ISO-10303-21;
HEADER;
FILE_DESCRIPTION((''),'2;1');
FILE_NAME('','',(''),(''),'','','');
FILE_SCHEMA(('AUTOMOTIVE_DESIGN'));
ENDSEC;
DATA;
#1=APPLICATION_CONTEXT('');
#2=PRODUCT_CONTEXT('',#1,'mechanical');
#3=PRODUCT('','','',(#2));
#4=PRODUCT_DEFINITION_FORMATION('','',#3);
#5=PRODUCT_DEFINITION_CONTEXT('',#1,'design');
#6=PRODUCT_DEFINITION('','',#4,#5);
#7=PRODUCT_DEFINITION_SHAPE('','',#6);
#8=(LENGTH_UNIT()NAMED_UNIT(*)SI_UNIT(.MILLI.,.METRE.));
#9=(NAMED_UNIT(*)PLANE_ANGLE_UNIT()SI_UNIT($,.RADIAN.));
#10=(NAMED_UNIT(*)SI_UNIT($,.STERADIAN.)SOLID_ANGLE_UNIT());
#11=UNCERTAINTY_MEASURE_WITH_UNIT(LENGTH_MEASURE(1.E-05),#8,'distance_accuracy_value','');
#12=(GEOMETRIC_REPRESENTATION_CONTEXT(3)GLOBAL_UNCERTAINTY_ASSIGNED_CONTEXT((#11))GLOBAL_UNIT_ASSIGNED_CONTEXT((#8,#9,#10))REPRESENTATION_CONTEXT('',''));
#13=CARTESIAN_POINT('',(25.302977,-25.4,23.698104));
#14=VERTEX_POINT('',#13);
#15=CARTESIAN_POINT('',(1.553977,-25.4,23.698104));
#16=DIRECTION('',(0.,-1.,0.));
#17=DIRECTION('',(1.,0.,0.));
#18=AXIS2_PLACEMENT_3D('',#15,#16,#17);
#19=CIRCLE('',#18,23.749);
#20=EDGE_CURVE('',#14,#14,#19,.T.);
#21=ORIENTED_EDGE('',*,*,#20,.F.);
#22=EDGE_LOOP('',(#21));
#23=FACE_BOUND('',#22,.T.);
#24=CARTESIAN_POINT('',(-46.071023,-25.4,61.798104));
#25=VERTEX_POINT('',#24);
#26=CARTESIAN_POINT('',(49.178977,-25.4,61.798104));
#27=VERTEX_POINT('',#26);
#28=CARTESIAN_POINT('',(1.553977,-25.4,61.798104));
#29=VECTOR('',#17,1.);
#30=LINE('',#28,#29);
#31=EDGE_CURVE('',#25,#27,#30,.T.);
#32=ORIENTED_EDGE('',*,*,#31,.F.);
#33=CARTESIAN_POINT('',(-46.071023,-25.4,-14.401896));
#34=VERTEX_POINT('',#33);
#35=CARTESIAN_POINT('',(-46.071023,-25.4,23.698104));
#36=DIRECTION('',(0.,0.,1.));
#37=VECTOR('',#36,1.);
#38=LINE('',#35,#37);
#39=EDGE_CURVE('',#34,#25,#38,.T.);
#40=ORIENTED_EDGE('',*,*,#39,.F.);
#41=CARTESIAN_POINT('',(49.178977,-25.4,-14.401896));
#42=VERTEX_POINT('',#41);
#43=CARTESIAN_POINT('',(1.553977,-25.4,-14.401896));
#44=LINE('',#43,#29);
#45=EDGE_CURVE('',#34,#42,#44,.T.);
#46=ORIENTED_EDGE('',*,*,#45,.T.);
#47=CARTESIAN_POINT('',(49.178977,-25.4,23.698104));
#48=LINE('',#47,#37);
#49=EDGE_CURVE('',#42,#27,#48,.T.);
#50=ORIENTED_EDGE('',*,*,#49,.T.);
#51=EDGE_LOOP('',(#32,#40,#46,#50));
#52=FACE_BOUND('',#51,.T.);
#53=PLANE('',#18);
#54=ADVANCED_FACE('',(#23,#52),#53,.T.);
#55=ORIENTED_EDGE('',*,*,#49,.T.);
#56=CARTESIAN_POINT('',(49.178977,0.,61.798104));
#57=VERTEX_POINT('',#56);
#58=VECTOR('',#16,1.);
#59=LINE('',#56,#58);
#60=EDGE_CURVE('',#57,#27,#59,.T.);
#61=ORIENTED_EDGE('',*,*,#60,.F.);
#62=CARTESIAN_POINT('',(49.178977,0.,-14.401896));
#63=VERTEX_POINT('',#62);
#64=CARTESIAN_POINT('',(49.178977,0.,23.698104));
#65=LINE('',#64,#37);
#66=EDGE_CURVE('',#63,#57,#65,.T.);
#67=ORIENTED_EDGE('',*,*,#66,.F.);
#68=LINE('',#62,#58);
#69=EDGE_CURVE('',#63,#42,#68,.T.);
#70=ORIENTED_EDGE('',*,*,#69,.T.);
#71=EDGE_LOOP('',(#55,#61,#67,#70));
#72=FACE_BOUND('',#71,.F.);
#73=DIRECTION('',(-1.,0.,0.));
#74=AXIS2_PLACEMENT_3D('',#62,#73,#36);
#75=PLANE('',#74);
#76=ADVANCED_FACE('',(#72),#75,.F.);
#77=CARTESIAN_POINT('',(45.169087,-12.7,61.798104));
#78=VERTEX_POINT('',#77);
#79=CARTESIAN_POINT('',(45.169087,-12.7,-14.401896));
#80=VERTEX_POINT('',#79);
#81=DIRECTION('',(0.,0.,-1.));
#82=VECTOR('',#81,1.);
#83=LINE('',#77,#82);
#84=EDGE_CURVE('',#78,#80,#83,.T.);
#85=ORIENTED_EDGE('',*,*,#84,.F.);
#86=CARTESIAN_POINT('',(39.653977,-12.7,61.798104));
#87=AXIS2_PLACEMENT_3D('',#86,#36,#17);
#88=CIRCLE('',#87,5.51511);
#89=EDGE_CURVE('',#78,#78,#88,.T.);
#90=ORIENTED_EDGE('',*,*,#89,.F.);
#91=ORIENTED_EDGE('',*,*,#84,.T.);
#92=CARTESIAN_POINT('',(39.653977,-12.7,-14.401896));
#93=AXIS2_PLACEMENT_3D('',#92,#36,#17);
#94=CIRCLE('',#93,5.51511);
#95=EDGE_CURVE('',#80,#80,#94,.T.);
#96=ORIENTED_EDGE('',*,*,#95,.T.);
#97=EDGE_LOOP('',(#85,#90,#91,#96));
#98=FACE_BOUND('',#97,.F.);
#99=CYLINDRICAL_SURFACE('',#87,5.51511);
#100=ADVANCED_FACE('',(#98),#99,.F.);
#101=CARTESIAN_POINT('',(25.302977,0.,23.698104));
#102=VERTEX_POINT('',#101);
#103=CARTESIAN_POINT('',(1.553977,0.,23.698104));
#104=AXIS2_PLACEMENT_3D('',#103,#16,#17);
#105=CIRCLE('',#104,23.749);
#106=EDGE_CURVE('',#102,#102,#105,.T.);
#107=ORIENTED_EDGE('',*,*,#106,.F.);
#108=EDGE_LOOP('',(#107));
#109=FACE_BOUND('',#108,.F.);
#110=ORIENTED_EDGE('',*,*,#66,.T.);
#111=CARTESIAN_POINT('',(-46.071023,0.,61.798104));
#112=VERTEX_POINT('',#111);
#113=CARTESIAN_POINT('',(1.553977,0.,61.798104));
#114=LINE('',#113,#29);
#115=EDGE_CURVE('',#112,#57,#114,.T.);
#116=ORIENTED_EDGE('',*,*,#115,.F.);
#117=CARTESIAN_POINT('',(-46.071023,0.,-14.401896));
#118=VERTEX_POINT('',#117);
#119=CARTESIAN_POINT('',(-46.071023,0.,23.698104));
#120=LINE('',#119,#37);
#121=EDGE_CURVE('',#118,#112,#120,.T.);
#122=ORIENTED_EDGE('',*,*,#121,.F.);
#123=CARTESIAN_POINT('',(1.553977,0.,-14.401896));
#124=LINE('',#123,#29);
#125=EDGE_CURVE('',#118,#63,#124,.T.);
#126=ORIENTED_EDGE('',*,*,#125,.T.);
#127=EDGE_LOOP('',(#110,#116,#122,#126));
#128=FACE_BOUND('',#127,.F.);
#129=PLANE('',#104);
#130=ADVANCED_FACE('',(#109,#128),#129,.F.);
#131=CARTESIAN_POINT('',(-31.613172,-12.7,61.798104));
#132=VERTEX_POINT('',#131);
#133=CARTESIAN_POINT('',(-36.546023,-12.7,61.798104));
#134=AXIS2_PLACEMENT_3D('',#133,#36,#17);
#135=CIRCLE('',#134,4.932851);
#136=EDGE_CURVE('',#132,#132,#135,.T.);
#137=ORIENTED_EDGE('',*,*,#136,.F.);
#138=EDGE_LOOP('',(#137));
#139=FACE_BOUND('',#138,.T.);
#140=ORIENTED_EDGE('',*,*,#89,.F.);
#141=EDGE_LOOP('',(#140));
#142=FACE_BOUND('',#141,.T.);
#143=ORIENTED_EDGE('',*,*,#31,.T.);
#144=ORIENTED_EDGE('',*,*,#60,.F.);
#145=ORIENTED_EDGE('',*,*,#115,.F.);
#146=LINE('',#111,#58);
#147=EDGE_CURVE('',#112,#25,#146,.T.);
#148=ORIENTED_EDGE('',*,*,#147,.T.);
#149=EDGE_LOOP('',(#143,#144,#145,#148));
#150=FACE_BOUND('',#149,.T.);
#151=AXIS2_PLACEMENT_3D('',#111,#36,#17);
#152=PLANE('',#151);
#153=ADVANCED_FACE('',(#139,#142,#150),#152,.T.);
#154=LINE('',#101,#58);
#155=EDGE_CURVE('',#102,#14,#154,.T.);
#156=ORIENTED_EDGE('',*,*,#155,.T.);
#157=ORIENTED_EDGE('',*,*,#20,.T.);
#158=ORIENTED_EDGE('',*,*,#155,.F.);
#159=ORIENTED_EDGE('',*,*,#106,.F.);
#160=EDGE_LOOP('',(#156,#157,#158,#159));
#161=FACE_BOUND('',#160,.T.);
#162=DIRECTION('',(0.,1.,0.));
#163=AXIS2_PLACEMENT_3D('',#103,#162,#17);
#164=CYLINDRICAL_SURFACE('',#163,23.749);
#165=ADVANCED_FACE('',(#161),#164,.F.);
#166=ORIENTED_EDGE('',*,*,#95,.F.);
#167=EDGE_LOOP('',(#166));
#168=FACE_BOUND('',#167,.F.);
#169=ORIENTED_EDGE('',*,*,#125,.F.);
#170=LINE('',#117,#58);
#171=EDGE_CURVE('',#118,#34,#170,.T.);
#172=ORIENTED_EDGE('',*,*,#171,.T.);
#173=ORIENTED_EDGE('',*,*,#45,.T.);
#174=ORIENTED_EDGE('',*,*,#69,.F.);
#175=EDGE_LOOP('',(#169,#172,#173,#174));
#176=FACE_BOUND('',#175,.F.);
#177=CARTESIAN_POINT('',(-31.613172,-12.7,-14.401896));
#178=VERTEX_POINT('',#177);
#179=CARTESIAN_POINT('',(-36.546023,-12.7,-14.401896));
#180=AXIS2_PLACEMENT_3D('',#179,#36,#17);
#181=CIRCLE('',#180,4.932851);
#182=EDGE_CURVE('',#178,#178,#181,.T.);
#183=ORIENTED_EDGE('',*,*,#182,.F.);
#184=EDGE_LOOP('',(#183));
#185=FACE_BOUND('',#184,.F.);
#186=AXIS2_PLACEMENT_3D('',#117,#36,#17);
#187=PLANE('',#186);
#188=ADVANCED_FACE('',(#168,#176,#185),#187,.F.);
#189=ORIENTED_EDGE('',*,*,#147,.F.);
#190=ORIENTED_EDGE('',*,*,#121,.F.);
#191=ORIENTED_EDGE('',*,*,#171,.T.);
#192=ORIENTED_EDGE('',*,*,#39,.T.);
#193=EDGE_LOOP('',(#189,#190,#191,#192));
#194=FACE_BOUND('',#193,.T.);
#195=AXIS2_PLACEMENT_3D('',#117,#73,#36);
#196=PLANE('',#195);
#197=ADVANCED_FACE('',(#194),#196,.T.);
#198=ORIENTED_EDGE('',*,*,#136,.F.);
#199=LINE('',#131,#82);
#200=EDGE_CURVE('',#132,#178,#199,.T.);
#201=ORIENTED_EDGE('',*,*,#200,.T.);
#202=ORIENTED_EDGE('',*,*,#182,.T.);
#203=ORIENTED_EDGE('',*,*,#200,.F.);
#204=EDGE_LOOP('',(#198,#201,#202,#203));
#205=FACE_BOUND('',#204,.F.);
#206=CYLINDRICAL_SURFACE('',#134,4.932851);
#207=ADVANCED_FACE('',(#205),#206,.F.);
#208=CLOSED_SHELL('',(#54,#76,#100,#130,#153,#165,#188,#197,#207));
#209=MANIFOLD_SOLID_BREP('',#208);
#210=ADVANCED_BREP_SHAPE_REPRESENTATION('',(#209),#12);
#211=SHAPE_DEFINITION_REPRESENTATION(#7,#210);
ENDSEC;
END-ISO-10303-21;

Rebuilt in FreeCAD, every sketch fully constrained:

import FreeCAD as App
import Part
import Sketcher

V = App.Vector
Q = App.Units.Quantity


def add_polygon(sketch, points):
    """Adds a closed chain of lines whose ends are joined by coincident constraints."""
    first, n = sketch.GeometryCount, len(points)
    for a, b in zip(points, points[1:] + points[:1]):
        sketch.addGeometry(Part.LineSegment(App.Vector(*a, 0), App.Vector(*b, 0)), False)
    for i in range(n):
        sketch.addConstraint(Sketcher.Constraint("Coincident", first + i, 2, first + (i + 1) % n, 1))

doc = App.newDocument("Part")
body = doc.addObject("PartDesign::Body", "Body")

sketch1 = body.newObject("Sketcher::SketchObject", "Sketch")
sketch1.AttachmentSupport = (doc.getObject("XZ_Plane"), [""])
sketch1.MapMode = "FlatFace"
add_polygon(sketch1, [(-46, 62), (-46, -14), (49, -14), (49, 62)])
sketch1.addGeometry(Part.Circle(V(2, 24, 0), V(0, 0, 1), 24), False)
sketch1.addConstraint([
    Sketcher.Constraint("Vertical", 0),
    Sketcher.Constraint("Horizontal", 1),
    Sketcher.Constraint("Vertical", 2),
    Sketcher.Constraint("Horizontal", 3),
    Sketcher.Constraint("Diameter", 4, Q("1.87 in")),
    Sketcher.Constraint("DistanceY", 0, 2, 0, 1, Q("3 in")),
    Sketcher.Constraint("DistanceX", 1, 1, 1, 2, Q("3.75 in")),
    Sketcher.Constraint("DistanceY", 0, 2, 4, 3, Q("1.5 in")),
    Sketcher.Constraint("DistanceX", 0, 2, 4, 3, Q("1.875 in")),
    Sketcher.Constraint("DistanceX", -1, 1, 4, 3, 1.553977),
    Sketcher.Constraint("DistanceY", -1, 1, 4, 3, 23.698104),
])
pad1 = body.newObject("PartDesign::Pad", "Pad")
pad1.Profile = sketch1
pad1.Length = Q("1 in")

sketch2 = body.newObject("Sketcher::SketchObject", "Sketch001")
sketch2.AttachmentSupport = (doc.getObject("XY_Plane"), [""])
sketch2.MapMode = "FlatFace"
sketch2.AttachmentOffset = App.Placement(V(0, 0, 61.798104), App.Rotation())
sketch2.addGeometry([
    Part.Circle(V(-36.5, -12.7, 0), V(0, 0, 1), 4.9),
    Part.Circle(V(39.7, -12.7, 0), V(0, 0, 1), 5.5),
], False)
sketch2.addConstraint([
    Sketcher.Constraint("Horizontal", 0, 3, 1, 3),
    Sketcher.Constraint("DistanceX", 0, 3, 1, 3, Q("3 in")),
    Sketcher.Constraint("DistanceY", 0, 3, -1, 1, Q("0.5 in")),
    Sketcher.Constraint("Diameter", 1, 11.03022),
    Sketcher.Constraint("Diameter", 0, 9.865702),
    Sketcher.Constraint("DistanceX", 0, 3, -1, 1, 36.546023),
])
pocket1 = body.newObject("PartDesign::Pocket", "Pocket")
pocket1.Profile = sketch2
pocket1.Length = 113.8043

doc.recompute()
